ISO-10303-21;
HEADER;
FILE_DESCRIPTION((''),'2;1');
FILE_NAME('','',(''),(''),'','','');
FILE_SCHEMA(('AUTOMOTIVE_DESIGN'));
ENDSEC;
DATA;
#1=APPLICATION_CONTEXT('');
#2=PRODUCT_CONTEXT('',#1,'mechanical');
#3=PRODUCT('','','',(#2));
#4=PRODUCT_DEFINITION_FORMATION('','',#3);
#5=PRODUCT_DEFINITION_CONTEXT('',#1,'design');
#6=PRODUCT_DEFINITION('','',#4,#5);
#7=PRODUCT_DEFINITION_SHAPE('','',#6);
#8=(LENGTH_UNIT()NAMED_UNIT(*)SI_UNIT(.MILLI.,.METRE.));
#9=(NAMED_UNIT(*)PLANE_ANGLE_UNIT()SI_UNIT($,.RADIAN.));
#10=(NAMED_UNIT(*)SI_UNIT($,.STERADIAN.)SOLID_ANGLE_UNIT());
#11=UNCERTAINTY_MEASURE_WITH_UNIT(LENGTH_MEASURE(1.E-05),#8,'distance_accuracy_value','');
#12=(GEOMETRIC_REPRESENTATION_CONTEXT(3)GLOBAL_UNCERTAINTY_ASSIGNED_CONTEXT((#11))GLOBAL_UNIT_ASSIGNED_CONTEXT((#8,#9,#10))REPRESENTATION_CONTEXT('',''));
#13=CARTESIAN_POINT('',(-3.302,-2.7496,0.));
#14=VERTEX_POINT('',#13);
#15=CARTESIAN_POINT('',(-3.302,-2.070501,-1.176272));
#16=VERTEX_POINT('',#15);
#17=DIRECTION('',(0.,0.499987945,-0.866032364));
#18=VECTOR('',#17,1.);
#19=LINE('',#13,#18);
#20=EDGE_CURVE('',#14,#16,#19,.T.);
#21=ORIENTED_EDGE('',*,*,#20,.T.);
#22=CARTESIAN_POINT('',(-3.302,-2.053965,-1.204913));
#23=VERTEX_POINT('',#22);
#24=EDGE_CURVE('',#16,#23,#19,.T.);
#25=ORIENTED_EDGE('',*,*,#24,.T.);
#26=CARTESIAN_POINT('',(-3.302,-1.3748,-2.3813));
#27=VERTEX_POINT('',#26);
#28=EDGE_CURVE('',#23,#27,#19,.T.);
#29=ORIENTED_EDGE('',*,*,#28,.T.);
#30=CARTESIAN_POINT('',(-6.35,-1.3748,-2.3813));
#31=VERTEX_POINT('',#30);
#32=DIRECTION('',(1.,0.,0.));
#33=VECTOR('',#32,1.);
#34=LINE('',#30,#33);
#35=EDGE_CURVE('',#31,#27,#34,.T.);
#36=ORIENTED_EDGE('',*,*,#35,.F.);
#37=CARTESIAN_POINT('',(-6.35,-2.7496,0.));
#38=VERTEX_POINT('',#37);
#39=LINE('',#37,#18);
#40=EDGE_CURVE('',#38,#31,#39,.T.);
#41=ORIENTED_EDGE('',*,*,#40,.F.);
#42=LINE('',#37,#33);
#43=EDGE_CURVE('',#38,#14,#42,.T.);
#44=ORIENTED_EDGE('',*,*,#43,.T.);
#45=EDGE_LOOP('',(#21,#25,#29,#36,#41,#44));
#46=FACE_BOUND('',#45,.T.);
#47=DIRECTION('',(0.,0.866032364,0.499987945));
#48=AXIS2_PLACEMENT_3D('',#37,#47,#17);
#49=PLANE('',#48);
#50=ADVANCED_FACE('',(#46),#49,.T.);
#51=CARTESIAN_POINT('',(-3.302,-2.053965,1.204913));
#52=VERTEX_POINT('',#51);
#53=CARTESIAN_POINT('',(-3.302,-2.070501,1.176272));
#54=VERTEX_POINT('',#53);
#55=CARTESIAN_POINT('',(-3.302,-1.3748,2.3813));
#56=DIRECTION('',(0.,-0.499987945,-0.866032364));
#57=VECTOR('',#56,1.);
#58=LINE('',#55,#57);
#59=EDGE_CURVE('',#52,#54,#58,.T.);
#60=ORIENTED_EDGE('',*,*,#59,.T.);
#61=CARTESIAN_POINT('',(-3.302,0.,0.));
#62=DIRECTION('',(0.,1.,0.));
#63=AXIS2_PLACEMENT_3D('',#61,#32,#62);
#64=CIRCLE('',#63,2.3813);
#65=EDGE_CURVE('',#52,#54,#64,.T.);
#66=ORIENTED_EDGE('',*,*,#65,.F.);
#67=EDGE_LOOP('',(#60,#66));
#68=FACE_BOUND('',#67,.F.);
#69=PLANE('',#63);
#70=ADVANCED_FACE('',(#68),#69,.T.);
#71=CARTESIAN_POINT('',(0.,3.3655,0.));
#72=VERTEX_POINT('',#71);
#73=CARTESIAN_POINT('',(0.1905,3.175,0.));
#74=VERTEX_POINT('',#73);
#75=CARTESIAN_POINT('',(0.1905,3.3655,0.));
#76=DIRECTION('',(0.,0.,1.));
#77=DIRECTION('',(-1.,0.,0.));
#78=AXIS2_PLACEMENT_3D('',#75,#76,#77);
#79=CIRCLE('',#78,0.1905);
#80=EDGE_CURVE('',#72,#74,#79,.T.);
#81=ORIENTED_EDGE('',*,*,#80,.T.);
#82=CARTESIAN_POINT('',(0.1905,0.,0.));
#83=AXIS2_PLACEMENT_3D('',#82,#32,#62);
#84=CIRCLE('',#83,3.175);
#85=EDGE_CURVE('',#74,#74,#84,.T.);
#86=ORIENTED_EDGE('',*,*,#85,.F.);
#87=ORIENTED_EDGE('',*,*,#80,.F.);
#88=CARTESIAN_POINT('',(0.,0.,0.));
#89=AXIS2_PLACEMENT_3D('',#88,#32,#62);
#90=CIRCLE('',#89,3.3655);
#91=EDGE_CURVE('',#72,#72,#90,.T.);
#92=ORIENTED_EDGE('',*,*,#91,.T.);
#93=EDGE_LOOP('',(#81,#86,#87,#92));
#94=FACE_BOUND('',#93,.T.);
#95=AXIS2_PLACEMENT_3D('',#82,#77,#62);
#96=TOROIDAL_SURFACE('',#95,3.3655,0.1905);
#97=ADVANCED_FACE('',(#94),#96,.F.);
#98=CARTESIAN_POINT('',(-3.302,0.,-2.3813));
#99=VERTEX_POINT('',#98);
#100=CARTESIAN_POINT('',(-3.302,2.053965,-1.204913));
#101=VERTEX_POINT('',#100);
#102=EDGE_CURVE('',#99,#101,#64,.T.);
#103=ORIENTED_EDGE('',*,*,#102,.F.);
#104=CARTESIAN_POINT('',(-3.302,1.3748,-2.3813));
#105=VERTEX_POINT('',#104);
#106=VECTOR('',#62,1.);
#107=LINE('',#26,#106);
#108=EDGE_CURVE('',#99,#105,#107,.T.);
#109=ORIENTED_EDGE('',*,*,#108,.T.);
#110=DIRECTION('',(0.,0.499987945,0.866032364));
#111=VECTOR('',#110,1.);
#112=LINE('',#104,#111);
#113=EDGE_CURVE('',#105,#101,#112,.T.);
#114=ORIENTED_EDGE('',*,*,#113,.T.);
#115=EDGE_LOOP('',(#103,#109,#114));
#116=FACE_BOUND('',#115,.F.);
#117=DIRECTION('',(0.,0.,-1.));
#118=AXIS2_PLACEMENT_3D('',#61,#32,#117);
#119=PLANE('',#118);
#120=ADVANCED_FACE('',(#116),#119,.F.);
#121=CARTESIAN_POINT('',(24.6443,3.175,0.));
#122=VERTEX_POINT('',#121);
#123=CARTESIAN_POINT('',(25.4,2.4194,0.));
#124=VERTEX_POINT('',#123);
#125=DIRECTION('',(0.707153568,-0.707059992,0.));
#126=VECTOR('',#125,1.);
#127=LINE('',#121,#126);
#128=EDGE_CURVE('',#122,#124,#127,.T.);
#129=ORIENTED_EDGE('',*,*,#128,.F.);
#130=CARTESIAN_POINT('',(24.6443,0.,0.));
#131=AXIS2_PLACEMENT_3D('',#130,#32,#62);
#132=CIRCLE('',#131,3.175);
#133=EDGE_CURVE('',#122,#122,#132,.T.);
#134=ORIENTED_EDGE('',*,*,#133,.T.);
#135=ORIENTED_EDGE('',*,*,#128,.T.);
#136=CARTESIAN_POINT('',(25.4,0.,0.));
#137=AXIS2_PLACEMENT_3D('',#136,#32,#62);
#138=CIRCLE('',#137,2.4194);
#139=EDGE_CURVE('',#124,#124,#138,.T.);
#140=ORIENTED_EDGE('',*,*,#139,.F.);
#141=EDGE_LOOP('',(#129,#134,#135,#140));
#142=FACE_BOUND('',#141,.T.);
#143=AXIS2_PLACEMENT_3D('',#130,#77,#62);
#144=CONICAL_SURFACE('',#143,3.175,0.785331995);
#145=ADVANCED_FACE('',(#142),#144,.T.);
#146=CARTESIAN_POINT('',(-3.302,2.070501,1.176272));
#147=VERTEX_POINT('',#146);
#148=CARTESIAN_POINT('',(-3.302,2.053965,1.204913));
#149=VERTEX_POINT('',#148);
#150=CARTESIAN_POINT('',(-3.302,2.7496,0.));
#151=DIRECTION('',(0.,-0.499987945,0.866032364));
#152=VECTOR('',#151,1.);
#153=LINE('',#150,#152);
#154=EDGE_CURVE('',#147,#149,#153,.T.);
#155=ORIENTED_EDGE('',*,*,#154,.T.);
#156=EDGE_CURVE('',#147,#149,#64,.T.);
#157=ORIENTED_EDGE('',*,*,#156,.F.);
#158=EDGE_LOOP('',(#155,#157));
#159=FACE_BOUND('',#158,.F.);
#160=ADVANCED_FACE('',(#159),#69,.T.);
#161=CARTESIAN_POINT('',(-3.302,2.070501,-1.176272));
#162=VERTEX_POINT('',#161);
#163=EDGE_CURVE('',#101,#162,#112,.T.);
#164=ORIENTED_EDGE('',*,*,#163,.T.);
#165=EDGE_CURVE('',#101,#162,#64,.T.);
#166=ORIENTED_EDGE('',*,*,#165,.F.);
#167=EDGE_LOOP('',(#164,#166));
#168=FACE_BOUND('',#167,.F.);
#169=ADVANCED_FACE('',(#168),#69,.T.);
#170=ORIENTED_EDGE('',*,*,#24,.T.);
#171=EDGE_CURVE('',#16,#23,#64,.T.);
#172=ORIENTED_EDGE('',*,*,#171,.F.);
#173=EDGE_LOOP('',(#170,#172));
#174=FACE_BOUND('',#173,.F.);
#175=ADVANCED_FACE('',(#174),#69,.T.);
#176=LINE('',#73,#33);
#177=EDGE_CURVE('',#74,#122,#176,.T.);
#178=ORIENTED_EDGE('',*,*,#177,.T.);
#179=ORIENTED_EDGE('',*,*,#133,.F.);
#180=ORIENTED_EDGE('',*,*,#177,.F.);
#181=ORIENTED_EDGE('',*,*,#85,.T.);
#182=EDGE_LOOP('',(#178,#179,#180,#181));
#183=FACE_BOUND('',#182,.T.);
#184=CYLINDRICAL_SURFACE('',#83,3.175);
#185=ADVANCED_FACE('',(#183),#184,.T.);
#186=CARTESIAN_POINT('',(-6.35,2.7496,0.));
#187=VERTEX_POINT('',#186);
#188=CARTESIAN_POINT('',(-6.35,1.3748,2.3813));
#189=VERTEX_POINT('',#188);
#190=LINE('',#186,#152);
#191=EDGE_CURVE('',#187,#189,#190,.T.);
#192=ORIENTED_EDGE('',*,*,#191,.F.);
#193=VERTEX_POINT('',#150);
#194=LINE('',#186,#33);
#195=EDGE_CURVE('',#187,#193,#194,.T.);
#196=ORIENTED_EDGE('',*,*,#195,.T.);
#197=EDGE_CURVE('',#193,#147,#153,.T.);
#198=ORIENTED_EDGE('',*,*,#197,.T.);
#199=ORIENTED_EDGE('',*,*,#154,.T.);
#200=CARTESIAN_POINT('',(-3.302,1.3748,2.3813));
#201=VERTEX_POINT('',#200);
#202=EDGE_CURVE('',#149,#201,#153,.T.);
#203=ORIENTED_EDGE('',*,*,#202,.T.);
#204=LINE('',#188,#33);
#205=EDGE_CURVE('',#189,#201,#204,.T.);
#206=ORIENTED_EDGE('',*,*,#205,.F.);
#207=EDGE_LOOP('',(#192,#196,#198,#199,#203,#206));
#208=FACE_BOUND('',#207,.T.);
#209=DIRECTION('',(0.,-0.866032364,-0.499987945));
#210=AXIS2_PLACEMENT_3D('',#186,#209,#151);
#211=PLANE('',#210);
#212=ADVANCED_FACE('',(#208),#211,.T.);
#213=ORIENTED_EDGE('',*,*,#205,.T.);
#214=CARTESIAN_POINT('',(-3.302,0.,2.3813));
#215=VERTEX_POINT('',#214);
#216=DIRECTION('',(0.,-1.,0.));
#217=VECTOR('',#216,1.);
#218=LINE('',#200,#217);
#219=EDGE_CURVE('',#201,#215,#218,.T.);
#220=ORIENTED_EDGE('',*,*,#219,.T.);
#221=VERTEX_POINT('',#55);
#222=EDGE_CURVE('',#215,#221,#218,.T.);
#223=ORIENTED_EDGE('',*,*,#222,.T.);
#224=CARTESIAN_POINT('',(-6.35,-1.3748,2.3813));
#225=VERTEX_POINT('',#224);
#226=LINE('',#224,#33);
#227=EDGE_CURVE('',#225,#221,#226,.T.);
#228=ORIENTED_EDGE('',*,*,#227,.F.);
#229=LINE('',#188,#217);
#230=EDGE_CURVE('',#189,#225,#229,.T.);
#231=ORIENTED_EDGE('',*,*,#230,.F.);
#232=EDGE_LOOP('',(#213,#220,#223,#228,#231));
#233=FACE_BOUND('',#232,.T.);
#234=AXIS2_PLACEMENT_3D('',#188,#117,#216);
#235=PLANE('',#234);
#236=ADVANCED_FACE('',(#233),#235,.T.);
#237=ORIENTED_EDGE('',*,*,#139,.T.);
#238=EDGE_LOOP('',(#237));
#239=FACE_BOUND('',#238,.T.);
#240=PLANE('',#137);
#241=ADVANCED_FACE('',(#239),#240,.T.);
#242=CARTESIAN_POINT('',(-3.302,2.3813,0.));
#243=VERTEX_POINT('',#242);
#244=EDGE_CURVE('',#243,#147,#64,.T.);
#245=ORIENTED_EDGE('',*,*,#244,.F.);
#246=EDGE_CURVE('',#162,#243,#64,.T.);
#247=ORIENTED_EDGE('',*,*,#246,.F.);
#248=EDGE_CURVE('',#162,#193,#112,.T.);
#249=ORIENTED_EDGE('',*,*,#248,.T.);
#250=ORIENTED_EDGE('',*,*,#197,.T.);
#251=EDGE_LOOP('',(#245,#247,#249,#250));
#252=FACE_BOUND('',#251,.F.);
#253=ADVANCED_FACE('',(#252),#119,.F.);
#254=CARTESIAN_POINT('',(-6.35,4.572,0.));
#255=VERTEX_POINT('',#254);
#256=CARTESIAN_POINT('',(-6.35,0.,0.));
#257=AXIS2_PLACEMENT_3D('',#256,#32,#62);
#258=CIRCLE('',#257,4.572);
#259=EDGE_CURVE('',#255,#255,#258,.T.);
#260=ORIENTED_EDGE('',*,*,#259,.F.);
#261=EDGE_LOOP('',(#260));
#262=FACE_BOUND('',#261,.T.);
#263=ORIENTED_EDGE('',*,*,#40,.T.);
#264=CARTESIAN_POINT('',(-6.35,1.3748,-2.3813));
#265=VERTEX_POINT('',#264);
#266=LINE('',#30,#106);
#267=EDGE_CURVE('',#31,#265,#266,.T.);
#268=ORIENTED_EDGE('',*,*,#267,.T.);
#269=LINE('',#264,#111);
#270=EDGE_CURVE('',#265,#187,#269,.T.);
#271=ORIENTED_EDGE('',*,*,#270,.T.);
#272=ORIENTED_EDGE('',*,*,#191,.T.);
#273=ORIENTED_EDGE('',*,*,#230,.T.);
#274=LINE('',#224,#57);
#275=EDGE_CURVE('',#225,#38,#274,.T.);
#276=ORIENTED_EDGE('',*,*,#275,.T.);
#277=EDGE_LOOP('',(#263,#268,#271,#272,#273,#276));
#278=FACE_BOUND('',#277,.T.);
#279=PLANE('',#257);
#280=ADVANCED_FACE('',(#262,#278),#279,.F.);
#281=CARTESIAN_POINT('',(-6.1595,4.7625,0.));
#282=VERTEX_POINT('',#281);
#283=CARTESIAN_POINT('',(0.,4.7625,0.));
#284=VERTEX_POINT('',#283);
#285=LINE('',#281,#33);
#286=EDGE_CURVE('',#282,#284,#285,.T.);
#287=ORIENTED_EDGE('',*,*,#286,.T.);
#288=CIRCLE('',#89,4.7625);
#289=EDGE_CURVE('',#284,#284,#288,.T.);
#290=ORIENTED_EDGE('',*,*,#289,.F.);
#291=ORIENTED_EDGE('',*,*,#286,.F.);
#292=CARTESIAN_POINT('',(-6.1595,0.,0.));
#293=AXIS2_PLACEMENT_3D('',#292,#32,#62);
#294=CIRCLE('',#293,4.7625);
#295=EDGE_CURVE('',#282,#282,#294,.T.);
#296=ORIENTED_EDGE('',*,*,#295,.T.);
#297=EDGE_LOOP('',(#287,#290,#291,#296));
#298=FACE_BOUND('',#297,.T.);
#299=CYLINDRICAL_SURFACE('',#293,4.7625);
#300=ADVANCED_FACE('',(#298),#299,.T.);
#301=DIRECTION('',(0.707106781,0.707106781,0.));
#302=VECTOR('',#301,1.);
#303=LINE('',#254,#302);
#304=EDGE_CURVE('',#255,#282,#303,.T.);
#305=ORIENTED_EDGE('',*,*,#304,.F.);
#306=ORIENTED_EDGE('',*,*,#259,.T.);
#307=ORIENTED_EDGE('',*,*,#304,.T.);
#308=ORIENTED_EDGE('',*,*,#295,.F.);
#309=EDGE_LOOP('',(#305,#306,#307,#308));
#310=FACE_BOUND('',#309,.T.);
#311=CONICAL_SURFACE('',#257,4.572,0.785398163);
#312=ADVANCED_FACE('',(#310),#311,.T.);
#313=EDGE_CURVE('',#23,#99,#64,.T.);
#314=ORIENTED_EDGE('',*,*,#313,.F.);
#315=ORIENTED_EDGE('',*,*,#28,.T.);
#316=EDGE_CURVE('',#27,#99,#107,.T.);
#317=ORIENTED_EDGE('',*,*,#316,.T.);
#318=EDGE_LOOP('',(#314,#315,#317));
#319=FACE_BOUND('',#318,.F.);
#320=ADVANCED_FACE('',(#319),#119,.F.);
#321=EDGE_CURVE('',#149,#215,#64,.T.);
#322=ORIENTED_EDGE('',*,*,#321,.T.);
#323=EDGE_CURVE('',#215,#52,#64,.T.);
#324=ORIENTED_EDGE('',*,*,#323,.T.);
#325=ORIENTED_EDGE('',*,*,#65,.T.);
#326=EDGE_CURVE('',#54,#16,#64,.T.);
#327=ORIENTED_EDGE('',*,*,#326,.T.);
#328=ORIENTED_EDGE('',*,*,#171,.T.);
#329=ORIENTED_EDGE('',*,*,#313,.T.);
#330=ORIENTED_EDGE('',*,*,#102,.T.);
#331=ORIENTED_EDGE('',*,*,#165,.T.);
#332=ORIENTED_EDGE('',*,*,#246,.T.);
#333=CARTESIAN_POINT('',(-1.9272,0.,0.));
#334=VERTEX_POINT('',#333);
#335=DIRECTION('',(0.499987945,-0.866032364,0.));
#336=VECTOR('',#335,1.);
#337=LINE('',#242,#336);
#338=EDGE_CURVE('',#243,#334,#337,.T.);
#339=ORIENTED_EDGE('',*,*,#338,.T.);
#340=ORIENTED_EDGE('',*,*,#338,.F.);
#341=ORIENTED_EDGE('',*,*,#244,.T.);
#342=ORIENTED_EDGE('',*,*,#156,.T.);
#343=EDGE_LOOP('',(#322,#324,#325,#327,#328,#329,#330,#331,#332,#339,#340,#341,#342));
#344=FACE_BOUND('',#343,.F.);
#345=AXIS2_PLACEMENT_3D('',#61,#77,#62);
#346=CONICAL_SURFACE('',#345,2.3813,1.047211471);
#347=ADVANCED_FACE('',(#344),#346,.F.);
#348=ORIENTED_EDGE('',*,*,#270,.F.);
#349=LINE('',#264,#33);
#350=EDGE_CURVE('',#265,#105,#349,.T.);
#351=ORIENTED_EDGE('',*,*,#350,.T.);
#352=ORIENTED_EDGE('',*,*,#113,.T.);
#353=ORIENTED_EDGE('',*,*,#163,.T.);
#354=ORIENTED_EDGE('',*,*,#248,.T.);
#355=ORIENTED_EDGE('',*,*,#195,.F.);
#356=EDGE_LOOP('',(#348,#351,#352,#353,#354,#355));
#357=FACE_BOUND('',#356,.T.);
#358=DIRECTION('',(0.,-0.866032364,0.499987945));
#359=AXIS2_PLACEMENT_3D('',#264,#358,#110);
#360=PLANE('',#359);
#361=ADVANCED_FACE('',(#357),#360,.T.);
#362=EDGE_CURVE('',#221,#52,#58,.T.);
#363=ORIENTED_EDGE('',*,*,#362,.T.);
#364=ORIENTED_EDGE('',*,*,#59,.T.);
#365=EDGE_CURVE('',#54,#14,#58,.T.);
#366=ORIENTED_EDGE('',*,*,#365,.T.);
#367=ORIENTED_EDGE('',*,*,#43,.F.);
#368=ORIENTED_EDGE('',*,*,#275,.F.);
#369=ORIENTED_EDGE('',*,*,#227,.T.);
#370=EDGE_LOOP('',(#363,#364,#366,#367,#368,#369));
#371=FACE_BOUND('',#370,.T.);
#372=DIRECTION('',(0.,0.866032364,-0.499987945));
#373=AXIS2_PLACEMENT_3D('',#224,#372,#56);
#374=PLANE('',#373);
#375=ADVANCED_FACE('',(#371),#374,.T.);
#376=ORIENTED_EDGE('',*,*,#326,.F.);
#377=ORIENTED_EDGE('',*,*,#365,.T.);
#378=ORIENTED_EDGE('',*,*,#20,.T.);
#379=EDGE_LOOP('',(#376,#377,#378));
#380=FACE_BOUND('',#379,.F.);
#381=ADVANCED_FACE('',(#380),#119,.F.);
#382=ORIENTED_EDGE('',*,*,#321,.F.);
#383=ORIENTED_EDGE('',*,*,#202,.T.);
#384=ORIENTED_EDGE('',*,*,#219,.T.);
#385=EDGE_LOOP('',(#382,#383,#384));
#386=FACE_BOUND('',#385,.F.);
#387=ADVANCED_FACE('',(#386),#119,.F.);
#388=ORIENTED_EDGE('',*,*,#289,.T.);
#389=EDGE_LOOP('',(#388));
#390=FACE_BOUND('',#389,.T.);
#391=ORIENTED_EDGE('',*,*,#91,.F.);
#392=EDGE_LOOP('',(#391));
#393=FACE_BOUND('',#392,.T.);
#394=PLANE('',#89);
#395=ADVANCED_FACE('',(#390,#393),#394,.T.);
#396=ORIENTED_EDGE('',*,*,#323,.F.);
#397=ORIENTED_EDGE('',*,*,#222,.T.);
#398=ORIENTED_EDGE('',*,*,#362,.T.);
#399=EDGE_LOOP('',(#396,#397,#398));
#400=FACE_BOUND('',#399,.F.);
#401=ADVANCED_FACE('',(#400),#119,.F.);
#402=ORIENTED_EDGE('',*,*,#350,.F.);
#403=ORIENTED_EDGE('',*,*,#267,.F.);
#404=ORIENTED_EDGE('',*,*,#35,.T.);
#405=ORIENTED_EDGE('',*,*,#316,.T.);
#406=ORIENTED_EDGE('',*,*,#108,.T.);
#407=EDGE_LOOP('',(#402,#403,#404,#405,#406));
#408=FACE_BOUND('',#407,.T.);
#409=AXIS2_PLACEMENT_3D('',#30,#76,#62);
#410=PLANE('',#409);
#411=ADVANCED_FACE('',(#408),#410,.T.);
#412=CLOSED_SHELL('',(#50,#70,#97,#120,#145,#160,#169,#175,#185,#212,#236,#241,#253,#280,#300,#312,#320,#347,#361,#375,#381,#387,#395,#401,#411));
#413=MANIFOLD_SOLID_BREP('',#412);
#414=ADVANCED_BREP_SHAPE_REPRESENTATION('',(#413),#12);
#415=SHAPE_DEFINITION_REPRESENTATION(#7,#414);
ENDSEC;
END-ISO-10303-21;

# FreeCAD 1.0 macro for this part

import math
import FreeCAD as App
import Part
import Sketcher

V = App.Vector
Q = App.Units.Quantity


def add_polygon(sketch, points):
    """Adds a closed chain of lines whose ends are joined by coincident constraints."""
    first, n = sketch.GeometryCount, len(points)
    for a, b in zip(points, points[1:] + points[:1]):
        sketch.addGeometry(Part.LineSegment(App.Vector(*a, 0), App.Vector(*b, 0)), False)
    for i in range(n):
        sketch.addConstraint(Sketcher.Constraint("Coincident", first + i, 2, first + (i + 1) % n, 1))

doc = App.newDocument("Part")
body = doc.addObject("PartDesign::Body", "Body")

sketch1 = body.newObject("Sketcher::SketchObject", "Sketch")
sketch1.AttachmentSupport = (doc.getObject("XY_Plane"), [""])
sketch1.MapMode = "FlatFace"
sketch1.addGeometry([
    Part.LineSegment(V(-6.35, 0, 0), V(25.4, 0, 0)),
    Part.LineSegment(V(25.4, 0, 0), V(25.4, 2.4194, 0)),
    Part.LineSegment(V(25.4, 2.4194, 0), V(24.6443, 3.175, 0)),
    Part.LineSegment(V(24.6443, 3.175, 0), V(0.1905, 3.175, 0)),
    Part.ArcOfCircle(Part.Circle(V(0.1905, 3.3655, 0), V(0, 0, 1), 0.1905), math.radians(180), math.radians(270)),
    Part.LineSegment(V(0, 3.3655, 0), V(0, 4.7625, 0)),
    Part.LineSegment(V(0, 4.7625, 0), V(-6.1595, 4.7625, 0)),
    Part.LineSegment(V(-6.1595, 4.7625, 0), V(-6.35, 4.572, 0)),
    Part.LineSegment(V(-6.35, 4.572, 0), V(-6.35, 0, 0)),
], False)
sketch1.addConstraint([
    Sketcher.Constraint("Coincident", 0, 2, 1, 1),
    Sketcher.Constraint("Coincident", 1, 2, 2, 1),
    Sketcher.Constraint("Coincident", 2, 2, 3, 1),
    Sketcher.Constraint("Tangent", 3, 2, 4, 2),
    Sketcher.Constraint("Tangent", 4, 1, 5, 1),
    Sketcher.Constraint("Coincident", 5, 2, 6, 1),
    Sketcher.Constraint("Coincident", 6, 2, 7, 1),
    Sketcher.Constraint("Coincident", 7, 2, 8, 1),
    Sketcher.Constraint("Coincident", 8, 2, 0, 1),
    Sketcher.Constraint("Horizontal", 0),
    Sketcher.Constraint("Vertical", 1),
    Sketcher.Constraint("Horizontal", 3),
    Sketcher.Constraint("Vertical", 5),
    Sketcher.Constraint("Horizontal", 6),
    Sketcher.Constraint("Vertical", 8),
    Sketcher.Constraint("PointOnObject", 0, 2, -1),
    Sketcher.Constraint("PointOnObject", 4, 1, -2),
    Sketcher.Constraint("Perpendicular", 2, 7),
    Sketcher.Constraint("DistanceX", -1, 1, 0, 2, Q("1 in")),
    Sketcher.Constraint("Angle", 7, Q("-135 deg")),
    Sketcher.Constraint("DistanceX", 0, 1, 0, 2, Q("1.25 in")),
    Sketcher.Constraint("DistanceY", 8, 2, 8, 1, Q("0.18 in")),
    Sketcher.Constraint("Radius", 4, Q("0.0075 in")),
    Sketcher.Constraint("DistanceY", 5, 1, 5, 2, Q("0.055 in")),
    Sketcher.Constraint("DistanceX", 6, 2, 4, 3, Q("0.25 in")),
    Sketcher.Constraint("DistanceX", 3, 2, 3, 1, 24.4538),
])
revolution = body.newObject("PartDesign::Revolution", "Revolution")
revolution.Profile = sketch1
revolution.ReferenceAxis = (sketch1, ["H_Axis"])
revolution.Angle = 360

sketch2 = body.newObject("Sketcher::SketchObject", "Sketch001")
sketch2.AttachmentSupport = (doc.getObject("YZ_Plane"), [""])
sketch2.MapMode = "FlatFace"
sketch2.AttachmentOffset = App.Placement(V(0, 0, -0.25 * 25.4), App.Rotation())
add_polygon(sketch2, [(1.3748, 2.3813), (-1.3748, 2.3813), (-2.7496, 0), (-1.3748, -2.3813), (1.3748, -2.3813), (2.7496, 0)])
sketch2.addConstraint([
    Sketcher.Constraint("Horizontal", 0),
    Sketcher.Constraint("Horizontal", 3),
    Sketcher.Constraint("Symmetric", 0, 2, 3, 2, -1, 1),
    Sketcher.Constraint("Symmetric", 1, 2, 4, 2, -1, 1),
    Sketcher.Constraint("PointOnObject", 1, 2, -1),
    Sketcher.Constraint("Parallel", 2, 5),
    Sketcher.Constraint("Vertical", 0, 2, 2, 2),
    Sketcher.Constraint("Angle", 1, Q("-119.9992 deg")),
    Sketcher.Constraint("DistanceY", -1, 1, 0, 2, Q("0.093752 in")),
    Sketcher.Constraint("DistanceX", 0, 2, 0, 1, 2.7496),
])
pocket1 = body.newObject("PartDesign::Pocket", "Pocket")
pocket1.Profile = sketch2
pocket1.Length = Q("0.12 in")
pocket1.Reversed = True

sketch3 = body.newObject("Sketcher::SketchObject", "Sketch002")
sketch3.AttachmentSupport = (doc.getObject("XY_Plane"), [""])
sketch3.MapMode = "FlatFace"
add_polygon(sketch3, [(-3.302, 0), (-1.9272, 0), (-3.302, 2.3813)])
sketch3.addConstraint([
    Sketcher.Constraint("Horizontal", 0),
    Sketcher.Constraint("Vertical", 2),
    Sketcher.Constraint("PointOnObject", 0, 2, -1),
    Sketcher.Constraint("Angle", 1, Q("119.9992 deg")),
    Sketcher.Constraint("DistanceY", 2, 2, 2, 1, Q("0.093752 in")),
    Sketcher.Constraint("DistanceX", 1, 2, -1, 1, Q("0.13 in")),
])
groove = body.newObject("PartDesign::Groove", "Groove")
groove.Profile = sketch3
groove.ReferenceAxis = (sketch3, ["H_Axis"])
groove.Angle = 360

doc.recompute()
